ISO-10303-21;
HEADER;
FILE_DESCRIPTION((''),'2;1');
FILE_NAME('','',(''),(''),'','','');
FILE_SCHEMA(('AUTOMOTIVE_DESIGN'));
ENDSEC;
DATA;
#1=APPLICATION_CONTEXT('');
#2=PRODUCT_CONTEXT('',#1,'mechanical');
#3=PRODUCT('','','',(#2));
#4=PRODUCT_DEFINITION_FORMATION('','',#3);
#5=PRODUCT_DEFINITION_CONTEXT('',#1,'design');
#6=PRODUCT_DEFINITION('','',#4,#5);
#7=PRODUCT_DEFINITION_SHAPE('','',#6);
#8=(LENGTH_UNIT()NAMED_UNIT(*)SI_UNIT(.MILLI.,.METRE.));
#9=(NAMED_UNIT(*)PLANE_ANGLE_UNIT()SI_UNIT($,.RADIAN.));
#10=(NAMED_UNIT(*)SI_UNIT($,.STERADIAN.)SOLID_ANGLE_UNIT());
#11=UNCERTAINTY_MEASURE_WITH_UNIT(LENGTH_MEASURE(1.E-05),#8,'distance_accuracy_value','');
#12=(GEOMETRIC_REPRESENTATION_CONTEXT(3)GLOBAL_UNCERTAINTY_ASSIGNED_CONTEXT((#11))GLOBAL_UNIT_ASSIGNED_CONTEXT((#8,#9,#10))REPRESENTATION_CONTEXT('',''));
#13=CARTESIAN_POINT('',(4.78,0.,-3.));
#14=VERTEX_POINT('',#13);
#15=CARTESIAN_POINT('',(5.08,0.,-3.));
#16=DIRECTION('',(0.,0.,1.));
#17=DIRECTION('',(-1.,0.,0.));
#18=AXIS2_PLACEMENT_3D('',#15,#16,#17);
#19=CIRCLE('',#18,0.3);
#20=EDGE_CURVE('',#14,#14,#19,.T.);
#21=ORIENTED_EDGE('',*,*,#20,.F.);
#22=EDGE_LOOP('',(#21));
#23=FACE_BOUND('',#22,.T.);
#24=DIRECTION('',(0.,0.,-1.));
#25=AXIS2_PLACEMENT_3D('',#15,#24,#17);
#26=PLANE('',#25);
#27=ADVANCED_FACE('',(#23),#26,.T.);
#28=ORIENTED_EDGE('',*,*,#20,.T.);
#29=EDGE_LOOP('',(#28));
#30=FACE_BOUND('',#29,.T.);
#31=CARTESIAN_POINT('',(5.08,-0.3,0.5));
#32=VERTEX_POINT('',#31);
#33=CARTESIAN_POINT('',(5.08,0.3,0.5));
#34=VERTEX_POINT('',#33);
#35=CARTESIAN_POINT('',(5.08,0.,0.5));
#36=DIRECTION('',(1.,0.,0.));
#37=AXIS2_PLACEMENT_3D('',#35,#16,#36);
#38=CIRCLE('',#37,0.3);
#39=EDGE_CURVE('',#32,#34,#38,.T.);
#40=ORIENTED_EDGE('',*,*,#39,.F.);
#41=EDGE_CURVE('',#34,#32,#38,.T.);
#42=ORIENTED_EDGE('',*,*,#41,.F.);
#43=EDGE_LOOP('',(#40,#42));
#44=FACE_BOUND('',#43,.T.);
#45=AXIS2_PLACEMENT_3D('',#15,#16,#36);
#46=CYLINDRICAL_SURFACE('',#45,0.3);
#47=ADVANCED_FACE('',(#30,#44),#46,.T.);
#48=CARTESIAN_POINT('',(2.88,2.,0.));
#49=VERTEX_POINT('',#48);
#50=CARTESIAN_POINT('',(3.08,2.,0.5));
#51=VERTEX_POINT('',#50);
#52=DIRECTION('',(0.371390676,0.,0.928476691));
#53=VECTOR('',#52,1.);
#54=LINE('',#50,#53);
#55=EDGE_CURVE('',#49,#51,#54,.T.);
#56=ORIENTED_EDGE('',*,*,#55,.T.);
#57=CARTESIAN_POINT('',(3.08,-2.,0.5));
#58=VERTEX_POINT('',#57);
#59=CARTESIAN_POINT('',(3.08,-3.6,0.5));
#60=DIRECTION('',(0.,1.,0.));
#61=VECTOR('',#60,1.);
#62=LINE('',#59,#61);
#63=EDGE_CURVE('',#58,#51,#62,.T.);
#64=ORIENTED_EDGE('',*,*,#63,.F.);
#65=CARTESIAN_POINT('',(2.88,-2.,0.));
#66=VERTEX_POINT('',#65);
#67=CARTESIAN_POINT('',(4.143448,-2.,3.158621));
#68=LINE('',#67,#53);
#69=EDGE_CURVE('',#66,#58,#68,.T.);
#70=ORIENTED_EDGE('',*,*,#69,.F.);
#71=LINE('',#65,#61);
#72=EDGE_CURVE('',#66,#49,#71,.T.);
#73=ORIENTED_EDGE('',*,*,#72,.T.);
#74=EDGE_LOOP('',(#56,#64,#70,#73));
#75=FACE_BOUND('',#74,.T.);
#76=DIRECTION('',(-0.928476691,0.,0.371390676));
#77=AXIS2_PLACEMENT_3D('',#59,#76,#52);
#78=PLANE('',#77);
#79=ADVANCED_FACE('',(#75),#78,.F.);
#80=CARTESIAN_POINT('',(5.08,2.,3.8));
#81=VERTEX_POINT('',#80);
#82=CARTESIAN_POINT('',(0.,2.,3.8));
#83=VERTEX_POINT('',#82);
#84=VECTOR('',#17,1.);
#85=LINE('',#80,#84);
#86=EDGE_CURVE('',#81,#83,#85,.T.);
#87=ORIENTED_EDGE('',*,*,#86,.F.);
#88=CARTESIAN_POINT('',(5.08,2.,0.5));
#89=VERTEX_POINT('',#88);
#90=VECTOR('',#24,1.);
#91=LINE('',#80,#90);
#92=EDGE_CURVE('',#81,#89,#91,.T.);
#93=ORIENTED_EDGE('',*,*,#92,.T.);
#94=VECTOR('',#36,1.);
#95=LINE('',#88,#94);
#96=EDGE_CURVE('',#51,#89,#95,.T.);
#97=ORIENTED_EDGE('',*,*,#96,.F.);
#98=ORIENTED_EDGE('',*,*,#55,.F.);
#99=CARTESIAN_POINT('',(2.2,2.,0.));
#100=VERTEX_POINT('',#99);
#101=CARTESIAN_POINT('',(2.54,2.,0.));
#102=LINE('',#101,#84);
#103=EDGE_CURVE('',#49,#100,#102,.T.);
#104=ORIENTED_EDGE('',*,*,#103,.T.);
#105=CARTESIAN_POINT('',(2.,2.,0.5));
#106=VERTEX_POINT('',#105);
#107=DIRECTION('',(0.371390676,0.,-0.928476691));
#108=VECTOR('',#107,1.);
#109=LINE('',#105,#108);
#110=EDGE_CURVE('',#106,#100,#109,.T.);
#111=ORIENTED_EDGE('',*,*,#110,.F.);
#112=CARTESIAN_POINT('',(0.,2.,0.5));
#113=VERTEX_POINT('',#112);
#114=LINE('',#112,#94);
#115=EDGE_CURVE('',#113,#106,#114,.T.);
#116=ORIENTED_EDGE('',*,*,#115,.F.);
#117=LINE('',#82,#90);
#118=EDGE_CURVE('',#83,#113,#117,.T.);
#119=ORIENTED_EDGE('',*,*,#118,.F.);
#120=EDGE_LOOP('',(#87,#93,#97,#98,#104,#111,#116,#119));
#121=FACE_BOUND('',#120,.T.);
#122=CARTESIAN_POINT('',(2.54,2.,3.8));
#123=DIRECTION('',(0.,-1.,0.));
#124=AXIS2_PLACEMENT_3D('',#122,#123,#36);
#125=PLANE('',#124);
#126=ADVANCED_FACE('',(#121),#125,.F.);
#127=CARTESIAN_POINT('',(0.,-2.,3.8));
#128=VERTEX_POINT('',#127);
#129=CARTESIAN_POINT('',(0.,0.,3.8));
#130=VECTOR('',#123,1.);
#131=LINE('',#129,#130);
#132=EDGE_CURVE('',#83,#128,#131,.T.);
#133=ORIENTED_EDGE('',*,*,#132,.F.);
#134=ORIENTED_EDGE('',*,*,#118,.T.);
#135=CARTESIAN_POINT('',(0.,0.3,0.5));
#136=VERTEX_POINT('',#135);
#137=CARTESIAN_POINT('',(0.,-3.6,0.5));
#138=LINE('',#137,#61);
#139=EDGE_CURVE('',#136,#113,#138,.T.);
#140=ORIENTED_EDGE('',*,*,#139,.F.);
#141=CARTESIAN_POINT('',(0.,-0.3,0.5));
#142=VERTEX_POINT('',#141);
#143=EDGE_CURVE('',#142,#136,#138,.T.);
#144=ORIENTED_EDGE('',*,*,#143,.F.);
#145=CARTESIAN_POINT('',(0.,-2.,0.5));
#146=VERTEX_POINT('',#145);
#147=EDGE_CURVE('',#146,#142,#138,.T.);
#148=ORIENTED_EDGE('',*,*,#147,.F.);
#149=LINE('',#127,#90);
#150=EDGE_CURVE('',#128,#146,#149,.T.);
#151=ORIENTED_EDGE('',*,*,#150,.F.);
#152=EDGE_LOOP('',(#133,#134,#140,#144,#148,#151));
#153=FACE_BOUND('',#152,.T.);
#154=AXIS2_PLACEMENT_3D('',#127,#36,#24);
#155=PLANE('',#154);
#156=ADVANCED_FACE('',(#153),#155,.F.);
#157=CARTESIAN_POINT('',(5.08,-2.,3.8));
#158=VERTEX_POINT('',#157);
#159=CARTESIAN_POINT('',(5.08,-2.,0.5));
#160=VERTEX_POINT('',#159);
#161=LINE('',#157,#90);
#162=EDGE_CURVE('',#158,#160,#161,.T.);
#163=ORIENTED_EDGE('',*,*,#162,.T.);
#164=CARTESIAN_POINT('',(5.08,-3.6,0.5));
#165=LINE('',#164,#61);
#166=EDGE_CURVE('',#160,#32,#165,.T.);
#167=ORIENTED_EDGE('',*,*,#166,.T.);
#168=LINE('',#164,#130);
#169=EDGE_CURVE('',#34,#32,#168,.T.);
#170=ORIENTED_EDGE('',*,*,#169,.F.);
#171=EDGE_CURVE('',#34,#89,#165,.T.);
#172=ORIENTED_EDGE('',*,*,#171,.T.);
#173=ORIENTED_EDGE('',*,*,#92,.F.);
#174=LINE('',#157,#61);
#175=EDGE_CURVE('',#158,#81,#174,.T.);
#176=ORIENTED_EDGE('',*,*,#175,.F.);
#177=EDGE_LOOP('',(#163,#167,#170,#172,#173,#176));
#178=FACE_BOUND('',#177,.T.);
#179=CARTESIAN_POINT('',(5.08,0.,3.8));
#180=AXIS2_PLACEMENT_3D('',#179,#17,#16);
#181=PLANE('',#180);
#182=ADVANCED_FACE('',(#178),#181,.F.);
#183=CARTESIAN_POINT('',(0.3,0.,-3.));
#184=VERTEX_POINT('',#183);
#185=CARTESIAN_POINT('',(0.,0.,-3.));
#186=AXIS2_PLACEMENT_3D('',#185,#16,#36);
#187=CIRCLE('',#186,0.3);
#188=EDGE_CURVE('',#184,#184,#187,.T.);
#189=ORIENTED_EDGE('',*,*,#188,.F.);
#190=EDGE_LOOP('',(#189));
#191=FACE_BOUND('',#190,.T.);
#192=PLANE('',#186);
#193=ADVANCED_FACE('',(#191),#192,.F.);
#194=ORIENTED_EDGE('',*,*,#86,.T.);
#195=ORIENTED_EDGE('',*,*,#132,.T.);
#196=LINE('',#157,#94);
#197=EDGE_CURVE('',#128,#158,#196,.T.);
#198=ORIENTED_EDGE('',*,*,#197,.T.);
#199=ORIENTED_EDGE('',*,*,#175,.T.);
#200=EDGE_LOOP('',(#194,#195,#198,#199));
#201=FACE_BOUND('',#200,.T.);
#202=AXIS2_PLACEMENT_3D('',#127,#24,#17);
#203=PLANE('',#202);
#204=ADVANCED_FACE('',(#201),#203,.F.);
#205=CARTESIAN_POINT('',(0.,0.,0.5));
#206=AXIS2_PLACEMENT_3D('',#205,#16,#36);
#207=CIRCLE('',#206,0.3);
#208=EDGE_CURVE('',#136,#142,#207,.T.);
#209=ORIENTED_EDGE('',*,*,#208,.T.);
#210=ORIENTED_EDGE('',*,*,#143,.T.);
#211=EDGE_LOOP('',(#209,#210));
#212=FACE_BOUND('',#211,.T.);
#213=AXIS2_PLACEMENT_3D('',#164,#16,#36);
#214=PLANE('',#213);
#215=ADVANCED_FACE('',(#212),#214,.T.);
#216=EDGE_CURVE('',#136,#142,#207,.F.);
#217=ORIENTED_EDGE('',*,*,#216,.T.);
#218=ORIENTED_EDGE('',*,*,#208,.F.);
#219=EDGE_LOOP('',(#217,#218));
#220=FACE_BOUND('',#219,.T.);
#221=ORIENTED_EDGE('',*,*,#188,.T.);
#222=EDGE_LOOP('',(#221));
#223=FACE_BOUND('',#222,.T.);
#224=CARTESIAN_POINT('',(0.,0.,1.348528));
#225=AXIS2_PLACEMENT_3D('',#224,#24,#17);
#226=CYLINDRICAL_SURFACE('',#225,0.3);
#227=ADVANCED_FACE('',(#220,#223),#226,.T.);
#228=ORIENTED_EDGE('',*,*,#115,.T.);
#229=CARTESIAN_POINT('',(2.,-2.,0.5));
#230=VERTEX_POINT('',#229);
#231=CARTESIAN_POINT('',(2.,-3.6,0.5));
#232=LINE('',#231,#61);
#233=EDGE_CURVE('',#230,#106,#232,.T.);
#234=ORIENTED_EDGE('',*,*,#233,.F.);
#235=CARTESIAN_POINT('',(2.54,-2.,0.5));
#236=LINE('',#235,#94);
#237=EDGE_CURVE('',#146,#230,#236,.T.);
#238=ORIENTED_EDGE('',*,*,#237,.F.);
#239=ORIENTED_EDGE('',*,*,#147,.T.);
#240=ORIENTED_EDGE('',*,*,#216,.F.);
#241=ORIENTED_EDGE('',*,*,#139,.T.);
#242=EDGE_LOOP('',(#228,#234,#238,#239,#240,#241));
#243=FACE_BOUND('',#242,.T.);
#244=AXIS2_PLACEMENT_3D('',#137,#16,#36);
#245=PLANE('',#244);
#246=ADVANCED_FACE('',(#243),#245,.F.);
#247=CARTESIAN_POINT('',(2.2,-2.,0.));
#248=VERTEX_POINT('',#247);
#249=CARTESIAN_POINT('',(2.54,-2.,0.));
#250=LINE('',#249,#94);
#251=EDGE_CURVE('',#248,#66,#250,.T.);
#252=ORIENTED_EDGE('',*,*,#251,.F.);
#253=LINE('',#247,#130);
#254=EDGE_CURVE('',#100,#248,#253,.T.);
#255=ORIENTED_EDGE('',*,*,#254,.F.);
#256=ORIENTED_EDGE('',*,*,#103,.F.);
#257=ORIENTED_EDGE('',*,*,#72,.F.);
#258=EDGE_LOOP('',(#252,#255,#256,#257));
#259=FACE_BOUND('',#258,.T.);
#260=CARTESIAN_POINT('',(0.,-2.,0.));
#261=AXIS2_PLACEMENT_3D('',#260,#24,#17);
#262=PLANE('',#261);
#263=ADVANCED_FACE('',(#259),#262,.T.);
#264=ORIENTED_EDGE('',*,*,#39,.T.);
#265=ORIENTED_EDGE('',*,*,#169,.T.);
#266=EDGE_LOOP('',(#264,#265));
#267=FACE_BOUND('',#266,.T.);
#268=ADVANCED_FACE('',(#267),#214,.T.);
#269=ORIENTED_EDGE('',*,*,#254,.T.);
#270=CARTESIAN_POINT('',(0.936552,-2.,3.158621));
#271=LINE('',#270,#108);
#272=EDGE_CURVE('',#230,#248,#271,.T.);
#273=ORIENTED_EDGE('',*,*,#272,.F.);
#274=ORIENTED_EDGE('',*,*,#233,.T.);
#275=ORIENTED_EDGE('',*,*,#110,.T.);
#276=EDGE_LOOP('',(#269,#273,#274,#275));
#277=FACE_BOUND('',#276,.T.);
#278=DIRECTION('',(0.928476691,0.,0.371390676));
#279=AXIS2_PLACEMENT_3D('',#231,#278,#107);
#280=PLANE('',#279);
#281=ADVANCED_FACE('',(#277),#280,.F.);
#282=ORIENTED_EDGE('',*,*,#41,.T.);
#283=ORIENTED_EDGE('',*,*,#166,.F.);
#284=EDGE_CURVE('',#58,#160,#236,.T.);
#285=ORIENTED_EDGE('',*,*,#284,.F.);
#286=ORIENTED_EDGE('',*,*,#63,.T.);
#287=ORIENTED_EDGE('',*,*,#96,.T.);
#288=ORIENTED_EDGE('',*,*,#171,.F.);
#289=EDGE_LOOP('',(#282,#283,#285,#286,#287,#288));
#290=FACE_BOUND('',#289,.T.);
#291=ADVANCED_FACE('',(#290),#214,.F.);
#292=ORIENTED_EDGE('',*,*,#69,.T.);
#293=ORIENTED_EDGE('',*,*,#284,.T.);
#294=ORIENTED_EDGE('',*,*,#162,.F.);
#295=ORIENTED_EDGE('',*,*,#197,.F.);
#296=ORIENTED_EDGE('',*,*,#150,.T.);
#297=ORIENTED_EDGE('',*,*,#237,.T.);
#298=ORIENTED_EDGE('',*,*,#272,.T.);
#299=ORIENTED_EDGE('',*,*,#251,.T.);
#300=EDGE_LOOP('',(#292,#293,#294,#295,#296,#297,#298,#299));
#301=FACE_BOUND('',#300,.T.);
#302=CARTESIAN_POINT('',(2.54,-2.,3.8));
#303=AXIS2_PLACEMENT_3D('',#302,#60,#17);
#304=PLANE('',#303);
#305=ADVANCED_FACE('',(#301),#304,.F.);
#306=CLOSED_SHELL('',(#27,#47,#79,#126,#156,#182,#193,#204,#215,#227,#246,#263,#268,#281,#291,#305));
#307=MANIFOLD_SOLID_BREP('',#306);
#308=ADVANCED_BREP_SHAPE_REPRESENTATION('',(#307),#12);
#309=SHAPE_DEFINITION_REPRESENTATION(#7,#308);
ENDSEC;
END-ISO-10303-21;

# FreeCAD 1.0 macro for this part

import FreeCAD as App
import Part
import Sketcher

V = App.Vector
Q = App.Units.Quantity

doc = App.newDocument("Part")
params = doc.addObject("Spreadsheet::Sheet", "Params")
for row, (alias, value) in enumerate([
    ("sketch1_height", "4 mm"),
    ("sketch1_width", "5.08 mm"),
    ("pad1_length", "3.8 mm"),
    ("sketch2_width", "2 mm"),
    ("sketch2_width2", "2.2 mm"),
    ("sketch2_height", "0.5 mm"),
    ("pocket1_length", "5.6 mm"),
    ("sketch3_diameter", "0.6 mm"),
    ("pad2_length", "3 mm"),
    ("sketch4_diameter", "0.6 mm"),
    ("pad3_length", "3 mm"),
    ("sketch5_diameter", "0.6 mm"),
    ("pad4_length", "0.5 mm"),
], start=1):
    params.set(f"A{row}", alias)
    params.set(f"B{row}", "=" + value)
    params.setAlias(f"B{row}", alias)

body = doc.addObject("PartDesign::Body", "Body")

sketch1 = body.newObject("Sketcher::SketchObject", "Sketch")
sketch1.AttachmentSupport = (doc.getObject("XY_Plane"), [""])
sketch1.MapMode = "FlatFace"
sketch1.addGeometry(Part.LineSegment(V(0, -2, 0), V(5.1, -2, 0)), False)
sketch1.addGeometry(Part.LineSegment(V(5.1, -2, 0), V(5.1, 2, 0)), False)
sketch1.addGeometry(Part.LineSegment(V(5.1, 2, 0), V(0, 2, 0)), False)
sketch1.addGeometry(Part.LineSegment(V(0, 2, 0), V(0, -2, 0)), False)
sketch1.addConstraint(Sketcher.Constraint("Coincident", 0, 2, 1, 1))
sketch1.addConstraint(Sketcher.Constraint("Coincident", 1, 2, 2, 1))
sketch1.addConstraint(Sketcher.Constraint("Coincident", 2, 2, 3, 1))
sketch1.addConstraint(Sketcher.Constraint("Coincident", 3, 2, 0, 1))
sketch1.addConstraint(Sketcher.Constraint("Horizontal", 0))
sketch1.addConstraint(Sketcher.Constraint("Vertical", 1))
sketch1.addConstraint(Sketcher.Constraint("Horizontal", 2))
sketch1.addConstraint(Sketcher.Constraint("Vertical", 3))
sketch1.addConstraint(Sketcher.Constraint("Symmetric", 2, 2, 3, 2, -1, 1))
sketch1.addConstraint(Sketcher.Constraint("DistanceY", 1, 1, 1, 2, Q("4 mm")))
sketch1.addConstraint(Sketcher.Constraint("DistanceX", 0, 1, 0, 2, Q("5.08 mm")))
sketch1.setExpression("Constraints[9]", "Params.sketch1_height")
sketch1.setExpression("Constraints[10]", "Params.sketch1_width")
pad1 = body.newObject("PartDesign::Pad", "Pad")
pad1.Profile = sketch1
pad1.setExpression("Length", "Params.pad1_length")

sketch2 = body.newObject("Sketcher::SketchObject", "Sketch001")
sketch2.AttachmentSupport = (doc.getObject("XZ_Plane"), [""])
sketch2.MapMode = "FlatFace"
sketch2.AttachmentOffset = App.Placement(V(0, 0, -2), App.Rotation())
sketch2.addGeometry(Part.LineSegment(V(0, 0, 0), V(0, 0.5, 0)), False)
sketch2.addGeometry(Part.LineSegment(V(0, 0.5, 0), V(2, 0.5, 0)), False)
sketch2.addGeometry(Part.LineSegment(V(2, 0.5, 0), V(2.2, 0, 0)), False)
sketch2.addGeometry(Part.LineSegment(V(2.2, 0, 0), V(0, 0, 0)), False)
sketch2.addGeometry(Part.LineSegment(V(5.1, 0, 0), V(2.9, 0, 0)), False)
sketch2.addGeometry(Part.LineSegment(V(2.9, 0, 0), V(3.1, 0.5, 0)), False)
sketch2.addGeometry(Part.LineSegment(V(3.1, 0.5, 0), V(5.1, 0.5, 0)), False)
sketch2.addGeometry(Part.LineSegment(V(5.1, 0.5, 0), V(5.1, 0, 0)), False)
sketch2.addConstraint(Sketcher.Constraint("Coincident", 0, 2, 1, 1))
sketch2.addConstraint(Sketcher.Constraint("Coincident", 1, 2, 2, 1))
sketch2.addConstraint(Sketcher.Constraint("Coincident", 2, 2, 3, 1))
sketch2.addConstraint(Sketcher.Constraint("Coincident", 3, 2, 0, 1))
sketch2.addConstraint(Sketcher.Constraint("Coincident", 4, 2, 5, 1))
sketch2.addConstraint(Sketcher.Constraint("Coincident", 5, 2, 6, 1))
sketch2.addConstraint(Sketcher.Constraint("Coincident", 6, 2, 7, 1))
sketch2.addConstraint(Sketcher.Constraint("Coincident", 7, 2, 4, 1))
sketch2.addConstraint(Sketcher.Constraint("Vertical", 0))
sketch2.addConstraint(Sketcher.Constraint("Horizontal", 1))
sketch2.addConstraint(Sketcher.Constraint("Horizontal", 3))
sketch2.addConstraint(Sketcher.Constraint("Horizontal", 4))
sketch2.addConstraint(Sketcher.Constraint("Horizontal", 6))
sketch2.addConstraint(Sketcher.Constraint("Vertical", 7))
sketch2.addConstraint(Sketcher.Constraint("Coincident", 3, 2, -1, 1))
sketch2.addConstraint(Sketcher.Constraint("PointOnObject", 4, 2, -1))
sketch2.addConstraint(Sketcher.Constraint("Horizontal", 1, 2, 5, 2))
sketch2.addConstraint(Sketcher.Constraint("Equal", 3, 4))
sketch2.addConstraint(Sketcher.Constraint("Equal", 1, 6))
sketch2.addConstraint(Sketcher.Constraint("DistanceX", 1, 1, 1, 2, Q("2 mm")))
sketch2.addConstraint(Sketcher.Constraint("DistanceX", 3, 2, 3, 1, Q("2.2 mm")))
sketch2.addConstraint(Sketcher.Constraint("DistanceY", 0, 1, 0, 2, Q("0.5 mm")))
sketch2.addConstraint(Sketcher.Constraint("DistanceX", -1, 1, 4, 2, Q("2.88 mm")))
sketch2.setExpression("Constraints[19]", "Params.sketch2_width")
sketch2.setExpression("Constraints[20]", "Params.sketch2_width2")
sketch2.setExpression("Constraints[21]", "Params.sketch2_height")
pocket1 = body.newObject("PartDesign::Pocket", "Pocket")
pocket1.Profile = sketch2
pocket1.setExpression("Length", "Params.pocket1_length")
pocket1.Reversed = True
body2 = doc.addObject("PartDesign::Body", "Body001")

sketch3 = body2.newObject("Sketcher::SketchObject", "Sketch002")
sketch3.AttachmentSupport = (doc.getObject("XY_Plane001"), [""])
sketch3.MapMode = "FlatFace"
sketch3.addGeometry(Part.Circle(V(0, 0, 0), V(0, 0, 1), 0.3), False)
sketch3.addConstraint(Sketcher.Constraint("Coincident", 0, 3, -1, 1))
sketch3.addConstraint(Sketcher.Constraint("Diameter", 0, Q("0.6 mm")))
sketch3.setExpression("Constraints[1]", "Params.sketch3_diameter")
pad2 = body2.newObject("PartDesign::Pad", "Pad001")
pad2.Profile = sketch3
pad2.setExpression("Length", "Params.pad2_length")
pad2.Reversed = True
body3 = doc.addObject("PartDesign::Body", "Body002")

sketch4 = body3.newObject("Sketcher::SketchObject", "Sketch003")
sketch4.AttachmentSupport = (doc.getObject("XY_Plane002"), [""])
sketch4.MapMode = "FlatFace"
sketch4.addGeometry(Part.Circle(V(5.08, 0, 0), V(0, 0, 1), 0.3), False)
sketch4.addConstraint(Sketcher.Constraint("PointOnObject", 0, 3, -1))
sketch4.addConstraint(Sketcher.Constraint("Diameter", 0, Q("0.6 mm")))
sketch4.addConstraint(Sketcher.Constraint("DistanceX", -1, 1, 0, 3, Q("5.08 mm")))
sketch4.setExpression("Constraints[1]", "Params.sketch4_diameter")
pad3 = body3.newObject("PartDesign::Pad", "Pad002")
pad3.Profile = sketch4
pad3.setExpression("Length", "Params.pad3_length")
pad3.Reversed = True
body.AllowCompound = True
doc.recompute()

boolean = body.newObject("PartDesign::Boolean", "Boolean")
boolean.Type = "Fuse"
boolean.addObjects([body2])
doc.recompute()

boolean2 = body.newObject("PartDesign::Boolean", "Boolean001")
boolean2.Type = "Fuse"
boolean2.addObjects([body3])

sketch5 = body.newObject("Sketcher::SketchObject", "Sketch004")
sketch5.AttachmentSupport = (doc.getObject("XY_Plane"), [""])
sketch5.MapMode = "FlatFace"
sketch5.addGeometry(Part.Circle(V(0, 0, 0), V(0, 0, 1), 0.3), False)
sketch5.addGeometry(Part.Circle(V(5.08, 0, 0), V(0, 0, 1), 0.3), False)
sketch5.addConstraint(Sketcher.Constraint("Coincident", 0, 3, -1, 1))
sketch5.addConstraint(Sketcher.Constraint("Equal", 0, 1))
sketch5.addConstraint(Sketcher.Constraint("PointOnObject", 1, 3, -1))
sketch5.addConstraint(Sketcher.Constraint("Diameter", 0, Q("0.6 mm")))
sketch5.addConstraint(Sketcher.Constraint("DistanceX", -1, 1, 1, 3, Q("5.08 mm")))
sketch5.setExpression("Constraints[3]", "Params.sketch5_diameter")
pad4 = body.newObject("PartDesign::Pad", "Pad003")
pad4.Profile = sketch5
pad4.setExpression("Length", "Params.pad4_length")

doc.recompute()
